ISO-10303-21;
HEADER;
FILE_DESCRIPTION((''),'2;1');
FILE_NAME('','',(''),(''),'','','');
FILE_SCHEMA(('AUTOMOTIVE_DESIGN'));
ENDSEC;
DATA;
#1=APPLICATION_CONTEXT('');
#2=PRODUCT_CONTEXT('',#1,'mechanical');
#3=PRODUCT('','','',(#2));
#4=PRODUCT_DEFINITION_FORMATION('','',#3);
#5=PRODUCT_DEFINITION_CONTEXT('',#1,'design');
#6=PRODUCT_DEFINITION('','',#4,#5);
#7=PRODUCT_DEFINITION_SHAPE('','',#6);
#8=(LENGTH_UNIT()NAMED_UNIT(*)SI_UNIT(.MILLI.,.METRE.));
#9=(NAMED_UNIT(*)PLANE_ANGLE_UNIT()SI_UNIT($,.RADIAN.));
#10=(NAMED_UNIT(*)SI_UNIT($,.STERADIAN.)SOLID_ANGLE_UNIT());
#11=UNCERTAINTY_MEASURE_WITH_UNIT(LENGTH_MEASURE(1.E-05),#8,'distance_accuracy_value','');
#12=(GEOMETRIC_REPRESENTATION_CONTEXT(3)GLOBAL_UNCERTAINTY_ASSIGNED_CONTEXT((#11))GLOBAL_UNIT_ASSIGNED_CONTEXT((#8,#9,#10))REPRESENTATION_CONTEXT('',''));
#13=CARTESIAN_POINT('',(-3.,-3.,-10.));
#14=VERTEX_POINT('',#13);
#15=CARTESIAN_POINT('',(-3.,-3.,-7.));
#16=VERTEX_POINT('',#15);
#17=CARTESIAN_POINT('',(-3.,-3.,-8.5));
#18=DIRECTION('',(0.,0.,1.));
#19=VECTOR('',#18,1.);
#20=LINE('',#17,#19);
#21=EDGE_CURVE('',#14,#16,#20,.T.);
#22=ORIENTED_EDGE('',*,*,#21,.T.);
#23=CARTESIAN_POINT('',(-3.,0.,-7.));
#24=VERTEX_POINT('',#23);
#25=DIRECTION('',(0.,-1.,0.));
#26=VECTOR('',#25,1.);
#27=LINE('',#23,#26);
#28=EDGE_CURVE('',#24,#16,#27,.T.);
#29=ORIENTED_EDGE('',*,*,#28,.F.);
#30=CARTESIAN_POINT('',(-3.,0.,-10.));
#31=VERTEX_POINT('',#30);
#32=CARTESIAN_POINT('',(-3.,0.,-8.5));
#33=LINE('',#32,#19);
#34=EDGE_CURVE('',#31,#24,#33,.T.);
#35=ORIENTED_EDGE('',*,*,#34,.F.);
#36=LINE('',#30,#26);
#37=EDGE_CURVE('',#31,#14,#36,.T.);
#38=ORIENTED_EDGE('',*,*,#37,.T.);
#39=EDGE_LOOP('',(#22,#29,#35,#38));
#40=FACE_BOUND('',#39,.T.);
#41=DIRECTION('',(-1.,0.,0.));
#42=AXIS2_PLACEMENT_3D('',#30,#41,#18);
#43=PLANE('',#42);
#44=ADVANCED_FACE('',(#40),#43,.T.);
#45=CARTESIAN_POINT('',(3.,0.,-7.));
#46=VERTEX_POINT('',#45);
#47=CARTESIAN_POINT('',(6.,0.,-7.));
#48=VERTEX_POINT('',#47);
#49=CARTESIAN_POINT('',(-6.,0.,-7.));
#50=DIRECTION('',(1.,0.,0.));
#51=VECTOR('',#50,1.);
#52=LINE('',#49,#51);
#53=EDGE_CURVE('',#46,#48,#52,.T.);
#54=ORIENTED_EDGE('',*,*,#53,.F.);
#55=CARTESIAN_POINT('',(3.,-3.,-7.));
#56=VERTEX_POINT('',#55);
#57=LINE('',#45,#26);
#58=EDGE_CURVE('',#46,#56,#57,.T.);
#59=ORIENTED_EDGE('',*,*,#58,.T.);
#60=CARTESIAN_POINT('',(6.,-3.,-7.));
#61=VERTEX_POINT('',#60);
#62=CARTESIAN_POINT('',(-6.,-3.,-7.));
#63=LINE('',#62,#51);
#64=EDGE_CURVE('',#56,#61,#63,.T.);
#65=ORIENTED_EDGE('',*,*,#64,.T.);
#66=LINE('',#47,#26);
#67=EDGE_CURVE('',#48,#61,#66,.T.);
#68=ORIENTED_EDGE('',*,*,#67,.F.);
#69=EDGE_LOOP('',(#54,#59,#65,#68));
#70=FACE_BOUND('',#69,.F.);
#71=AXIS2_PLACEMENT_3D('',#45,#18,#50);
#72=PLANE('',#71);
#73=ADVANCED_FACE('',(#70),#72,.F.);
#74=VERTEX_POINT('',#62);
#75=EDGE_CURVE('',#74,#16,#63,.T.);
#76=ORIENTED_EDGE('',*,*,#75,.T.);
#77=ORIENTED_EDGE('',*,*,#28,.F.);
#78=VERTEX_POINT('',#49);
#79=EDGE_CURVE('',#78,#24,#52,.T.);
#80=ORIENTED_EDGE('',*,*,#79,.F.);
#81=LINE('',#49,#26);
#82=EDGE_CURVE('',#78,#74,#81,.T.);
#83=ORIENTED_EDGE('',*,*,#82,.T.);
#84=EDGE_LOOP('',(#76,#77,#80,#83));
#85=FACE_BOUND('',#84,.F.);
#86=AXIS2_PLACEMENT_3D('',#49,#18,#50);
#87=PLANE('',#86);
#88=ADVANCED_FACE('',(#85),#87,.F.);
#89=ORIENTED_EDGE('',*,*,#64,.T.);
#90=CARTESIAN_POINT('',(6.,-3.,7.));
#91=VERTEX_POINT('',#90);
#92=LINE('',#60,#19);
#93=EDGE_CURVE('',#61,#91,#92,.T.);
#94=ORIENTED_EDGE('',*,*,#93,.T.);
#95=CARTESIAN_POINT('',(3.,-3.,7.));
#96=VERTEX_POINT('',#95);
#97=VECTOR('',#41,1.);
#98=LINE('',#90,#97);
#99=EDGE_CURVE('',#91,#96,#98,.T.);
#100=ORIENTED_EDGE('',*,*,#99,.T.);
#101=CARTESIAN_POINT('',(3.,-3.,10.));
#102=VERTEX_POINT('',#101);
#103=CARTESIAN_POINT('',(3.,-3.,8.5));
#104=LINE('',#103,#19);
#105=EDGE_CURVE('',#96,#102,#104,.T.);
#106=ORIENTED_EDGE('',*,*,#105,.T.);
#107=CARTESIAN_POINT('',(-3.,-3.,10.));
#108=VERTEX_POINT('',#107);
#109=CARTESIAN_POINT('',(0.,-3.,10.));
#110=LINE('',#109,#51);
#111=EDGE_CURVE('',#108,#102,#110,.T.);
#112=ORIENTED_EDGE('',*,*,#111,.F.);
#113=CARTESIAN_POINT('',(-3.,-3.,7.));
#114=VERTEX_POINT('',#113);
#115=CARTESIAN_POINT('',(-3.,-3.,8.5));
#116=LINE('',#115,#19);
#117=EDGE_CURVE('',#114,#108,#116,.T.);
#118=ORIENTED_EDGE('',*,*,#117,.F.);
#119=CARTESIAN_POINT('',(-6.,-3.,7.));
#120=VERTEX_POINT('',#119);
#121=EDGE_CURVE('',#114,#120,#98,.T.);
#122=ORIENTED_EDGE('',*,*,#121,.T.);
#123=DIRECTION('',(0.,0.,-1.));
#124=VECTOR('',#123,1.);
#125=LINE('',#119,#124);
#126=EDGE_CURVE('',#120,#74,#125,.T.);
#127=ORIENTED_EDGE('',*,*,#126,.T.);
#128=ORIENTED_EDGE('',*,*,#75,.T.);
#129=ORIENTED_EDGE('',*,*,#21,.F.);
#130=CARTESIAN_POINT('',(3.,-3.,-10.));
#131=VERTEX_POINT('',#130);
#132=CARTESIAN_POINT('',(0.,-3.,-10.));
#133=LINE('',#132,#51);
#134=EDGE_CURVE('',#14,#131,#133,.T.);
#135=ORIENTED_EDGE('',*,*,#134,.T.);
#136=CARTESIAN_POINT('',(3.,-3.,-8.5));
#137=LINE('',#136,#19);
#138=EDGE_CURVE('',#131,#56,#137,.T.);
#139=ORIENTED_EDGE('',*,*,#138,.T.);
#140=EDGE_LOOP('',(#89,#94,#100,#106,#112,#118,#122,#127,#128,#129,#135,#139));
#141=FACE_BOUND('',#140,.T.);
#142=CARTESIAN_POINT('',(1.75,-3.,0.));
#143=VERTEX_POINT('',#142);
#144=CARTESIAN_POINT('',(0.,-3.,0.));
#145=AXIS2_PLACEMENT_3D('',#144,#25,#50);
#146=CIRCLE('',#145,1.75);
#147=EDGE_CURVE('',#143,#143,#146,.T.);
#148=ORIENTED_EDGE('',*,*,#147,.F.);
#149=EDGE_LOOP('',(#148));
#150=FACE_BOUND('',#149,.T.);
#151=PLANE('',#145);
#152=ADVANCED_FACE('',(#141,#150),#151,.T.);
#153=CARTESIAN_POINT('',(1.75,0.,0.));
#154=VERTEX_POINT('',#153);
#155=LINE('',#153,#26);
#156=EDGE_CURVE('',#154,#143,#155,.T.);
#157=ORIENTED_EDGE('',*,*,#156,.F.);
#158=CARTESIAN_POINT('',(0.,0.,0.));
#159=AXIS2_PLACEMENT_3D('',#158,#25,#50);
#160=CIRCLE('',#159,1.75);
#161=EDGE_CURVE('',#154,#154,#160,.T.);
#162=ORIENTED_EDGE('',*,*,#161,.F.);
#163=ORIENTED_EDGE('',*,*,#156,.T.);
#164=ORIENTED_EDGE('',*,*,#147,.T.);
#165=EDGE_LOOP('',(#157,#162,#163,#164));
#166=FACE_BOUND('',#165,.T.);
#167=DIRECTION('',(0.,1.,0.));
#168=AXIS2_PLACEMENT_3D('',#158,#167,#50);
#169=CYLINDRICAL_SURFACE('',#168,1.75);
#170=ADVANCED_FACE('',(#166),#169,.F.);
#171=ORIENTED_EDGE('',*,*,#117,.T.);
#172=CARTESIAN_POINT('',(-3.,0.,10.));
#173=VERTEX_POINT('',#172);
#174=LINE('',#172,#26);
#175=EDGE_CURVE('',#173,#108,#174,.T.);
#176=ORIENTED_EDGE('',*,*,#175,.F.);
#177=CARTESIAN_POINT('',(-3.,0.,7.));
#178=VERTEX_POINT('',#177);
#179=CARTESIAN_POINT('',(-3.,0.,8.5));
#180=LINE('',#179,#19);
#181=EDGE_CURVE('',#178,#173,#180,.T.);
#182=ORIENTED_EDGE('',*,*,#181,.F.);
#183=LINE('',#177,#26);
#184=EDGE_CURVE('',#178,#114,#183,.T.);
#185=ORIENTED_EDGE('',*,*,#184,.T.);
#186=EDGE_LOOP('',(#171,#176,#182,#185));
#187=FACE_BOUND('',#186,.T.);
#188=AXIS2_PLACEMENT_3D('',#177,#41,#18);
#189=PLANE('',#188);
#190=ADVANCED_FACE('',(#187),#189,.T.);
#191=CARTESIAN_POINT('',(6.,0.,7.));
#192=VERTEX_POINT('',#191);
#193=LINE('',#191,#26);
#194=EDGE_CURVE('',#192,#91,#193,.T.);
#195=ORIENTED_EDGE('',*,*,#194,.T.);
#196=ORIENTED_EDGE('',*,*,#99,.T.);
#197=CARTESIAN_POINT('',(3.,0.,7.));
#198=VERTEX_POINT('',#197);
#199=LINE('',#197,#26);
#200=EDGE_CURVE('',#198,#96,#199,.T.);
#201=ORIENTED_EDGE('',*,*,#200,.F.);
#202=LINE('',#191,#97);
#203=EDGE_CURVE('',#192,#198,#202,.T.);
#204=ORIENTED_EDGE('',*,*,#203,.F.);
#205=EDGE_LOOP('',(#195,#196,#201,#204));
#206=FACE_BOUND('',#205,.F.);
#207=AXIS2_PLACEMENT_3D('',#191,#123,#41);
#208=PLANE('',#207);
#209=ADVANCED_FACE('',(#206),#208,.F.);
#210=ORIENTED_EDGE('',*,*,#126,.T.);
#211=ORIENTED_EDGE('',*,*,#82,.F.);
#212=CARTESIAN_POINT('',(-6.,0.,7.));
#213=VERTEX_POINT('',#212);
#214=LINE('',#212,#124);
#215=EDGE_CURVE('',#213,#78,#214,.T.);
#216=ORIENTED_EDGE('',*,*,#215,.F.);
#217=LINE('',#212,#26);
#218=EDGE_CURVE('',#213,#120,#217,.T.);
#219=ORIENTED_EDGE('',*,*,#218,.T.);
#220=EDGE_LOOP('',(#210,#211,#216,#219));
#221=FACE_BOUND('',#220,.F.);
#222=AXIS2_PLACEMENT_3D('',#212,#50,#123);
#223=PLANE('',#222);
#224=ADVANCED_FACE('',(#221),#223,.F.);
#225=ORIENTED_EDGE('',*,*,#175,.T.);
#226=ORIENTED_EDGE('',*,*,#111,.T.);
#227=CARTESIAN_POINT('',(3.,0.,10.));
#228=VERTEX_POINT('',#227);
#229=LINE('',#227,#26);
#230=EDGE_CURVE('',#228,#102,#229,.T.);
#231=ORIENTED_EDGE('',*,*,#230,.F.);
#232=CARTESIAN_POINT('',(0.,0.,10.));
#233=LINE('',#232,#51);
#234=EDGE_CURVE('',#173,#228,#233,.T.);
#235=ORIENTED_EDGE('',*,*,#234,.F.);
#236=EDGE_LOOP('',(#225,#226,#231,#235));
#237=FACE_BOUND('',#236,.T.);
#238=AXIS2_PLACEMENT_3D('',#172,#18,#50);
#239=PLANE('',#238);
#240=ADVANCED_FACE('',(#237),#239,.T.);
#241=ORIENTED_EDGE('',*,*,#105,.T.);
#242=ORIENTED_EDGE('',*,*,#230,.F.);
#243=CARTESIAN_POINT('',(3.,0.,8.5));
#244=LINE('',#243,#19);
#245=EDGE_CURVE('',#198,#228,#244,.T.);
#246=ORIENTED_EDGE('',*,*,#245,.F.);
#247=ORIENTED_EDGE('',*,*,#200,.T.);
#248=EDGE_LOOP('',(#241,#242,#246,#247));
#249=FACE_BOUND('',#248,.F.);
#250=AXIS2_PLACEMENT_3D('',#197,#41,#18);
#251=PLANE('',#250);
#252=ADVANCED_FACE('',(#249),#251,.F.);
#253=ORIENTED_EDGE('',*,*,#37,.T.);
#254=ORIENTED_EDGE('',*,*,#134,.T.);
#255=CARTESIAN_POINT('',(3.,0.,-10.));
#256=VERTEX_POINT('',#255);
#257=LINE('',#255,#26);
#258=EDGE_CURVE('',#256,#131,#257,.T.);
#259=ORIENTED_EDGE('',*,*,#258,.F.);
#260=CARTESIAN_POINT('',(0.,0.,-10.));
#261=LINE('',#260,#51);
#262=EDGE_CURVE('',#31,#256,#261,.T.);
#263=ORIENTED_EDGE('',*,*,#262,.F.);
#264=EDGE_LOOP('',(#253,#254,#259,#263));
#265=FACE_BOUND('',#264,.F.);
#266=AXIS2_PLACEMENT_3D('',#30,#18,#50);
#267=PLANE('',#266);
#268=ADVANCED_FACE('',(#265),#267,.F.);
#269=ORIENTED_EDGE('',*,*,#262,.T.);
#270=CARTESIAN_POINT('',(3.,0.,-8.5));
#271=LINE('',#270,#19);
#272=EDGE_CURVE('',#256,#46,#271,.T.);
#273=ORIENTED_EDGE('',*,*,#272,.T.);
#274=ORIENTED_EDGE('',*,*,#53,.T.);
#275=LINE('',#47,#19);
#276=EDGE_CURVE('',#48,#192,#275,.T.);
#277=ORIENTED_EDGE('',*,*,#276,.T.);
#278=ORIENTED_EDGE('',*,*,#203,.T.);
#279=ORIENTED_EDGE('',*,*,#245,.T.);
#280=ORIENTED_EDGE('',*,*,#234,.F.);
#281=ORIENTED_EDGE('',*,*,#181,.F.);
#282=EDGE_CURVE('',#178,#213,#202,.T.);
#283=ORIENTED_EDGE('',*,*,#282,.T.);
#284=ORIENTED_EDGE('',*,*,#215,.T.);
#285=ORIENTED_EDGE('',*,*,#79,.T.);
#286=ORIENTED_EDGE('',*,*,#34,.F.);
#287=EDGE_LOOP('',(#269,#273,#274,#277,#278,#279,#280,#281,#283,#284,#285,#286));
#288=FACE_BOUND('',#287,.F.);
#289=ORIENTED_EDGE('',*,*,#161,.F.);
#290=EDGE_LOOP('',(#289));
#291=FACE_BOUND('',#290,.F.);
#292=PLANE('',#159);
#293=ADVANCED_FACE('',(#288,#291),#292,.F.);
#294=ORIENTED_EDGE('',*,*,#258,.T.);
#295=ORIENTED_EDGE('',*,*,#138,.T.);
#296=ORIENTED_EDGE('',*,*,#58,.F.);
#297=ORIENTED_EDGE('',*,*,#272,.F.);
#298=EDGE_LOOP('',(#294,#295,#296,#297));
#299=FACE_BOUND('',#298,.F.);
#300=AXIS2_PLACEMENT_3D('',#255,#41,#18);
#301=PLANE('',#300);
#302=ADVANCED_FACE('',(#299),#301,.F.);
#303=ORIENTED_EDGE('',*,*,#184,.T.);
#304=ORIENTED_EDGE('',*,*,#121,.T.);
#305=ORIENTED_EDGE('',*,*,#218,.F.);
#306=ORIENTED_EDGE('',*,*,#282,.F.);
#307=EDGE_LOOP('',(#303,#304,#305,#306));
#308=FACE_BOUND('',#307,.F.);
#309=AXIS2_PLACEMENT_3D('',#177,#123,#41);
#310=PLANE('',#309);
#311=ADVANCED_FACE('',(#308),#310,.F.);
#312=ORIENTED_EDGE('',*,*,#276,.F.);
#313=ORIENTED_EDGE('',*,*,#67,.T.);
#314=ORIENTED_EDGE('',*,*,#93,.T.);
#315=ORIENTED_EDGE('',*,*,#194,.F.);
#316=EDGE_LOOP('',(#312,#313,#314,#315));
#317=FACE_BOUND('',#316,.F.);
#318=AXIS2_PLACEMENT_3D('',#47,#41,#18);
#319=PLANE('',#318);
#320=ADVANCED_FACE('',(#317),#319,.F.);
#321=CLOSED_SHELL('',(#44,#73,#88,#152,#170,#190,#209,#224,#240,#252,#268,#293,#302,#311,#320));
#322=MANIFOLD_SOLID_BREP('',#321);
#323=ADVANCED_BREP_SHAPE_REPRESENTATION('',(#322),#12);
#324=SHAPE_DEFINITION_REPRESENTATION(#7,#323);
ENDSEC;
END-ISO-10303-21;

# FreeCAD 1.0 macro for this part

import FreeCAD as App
import Part
import Sketcher
from FreeCAD import Vector
Q = App.Units.Quantity

doc = App.newDocument("Part")
body = doc.addObject("PartDesign::Body", "Body")

# Sketch on XZ plane
sketch1 = body.newObject("Sketcher::SketchObject", "Sketch")
sketch1.AttachmentSupport = (doc.getObject("XZ_Plane"), [""])
sketch1.MapMode = "FlatFace"
sketch1.addGeometry([
    Part.LineSegment(Vector(6, -7, 0), Vector(6, 7, 0)),  # 0
    Part.LineSegment(Vector(6, 7, 0), Vector(3, 7, 0)),  # 1
    Part.LineSegment(Vector(3, 7, 0), Vector(3, 10, 0)),  # 2
    Part.LineSegment(Vector(3, 10, 0), Vector(-3, 10, 0)),  # 3
    Part.LineSegment(Vector(-3, 10, 0), Vector(-3, 7, 0)),  # 4
    Part.LineSegment(Vector(-3, 7, 0), Vector(-6, 7, 0)),  # 5
    Part.LineSegment(Vector(-6, 7, 0), Vector(-6, -7, 0)),  # 6
    Part.LineSegment(Vector(-6, -7, 0), Vector(-3, -7, 0)),  # 7
    Part.LineSegment(Vector(-3, -7, 0), Vector(-3, -10, 0)),  # 8
    Part.LineSegment(Vector(-3, -10, 0), Vector(3, -10, 0)),  # 9
    Part.LineSegment(Vector(3, -10, 0), Vector(3, -7, 0)),  # 10
    Part.LineSegment(Vector(3, -7, 0), Vector(6, -7, 0)),  # 11
    Part.Circle(Vector(0, 0, 0), Vector(0, 0, 1), 1.8),  # 12
], False)
sketch1.addConstraint([
    Sketcher.Constraint("Coincident", 0, 2, 1, 1),
    Sketcher.Constraint("Coincident", 1, 2, 2, 1),
    Sketcher.Constraint("Coincident", 2, 2, 3, 1),
    Sketcher.Constraint("Coincident", 3, 2, 4, 1),
    Sketcher.Constraint("Coincident", 4, 2, 5, 1),
    Sketcher.Constraint("Coincident", 5, 2, 6, 1),
    Sketcher.Constraint("Coincident", 6, 2, 7, 1),
    Sketcher.Constraint("Coincident", 7, 2, 8, 1),
    Sketcher.Constraint("Coincident", 8, 2, 9, 1),
    Sketcher.Constraint("Coincident", 9, 2, 10, 1),
    Sketcher.Constraint("Coincident", 10, 2, 11, 1),
    Sketcher.Constraint("Coincident", 11, 2, 0, 1),
    Sketcher.Constraint("Vertical", 0),
    Sketcher.Constraint("Horizontal", 1),
    Sketcher.Constraint("Vertical", 2),
    Sketcher.Constraint("Horizontal", 3),
    Sketcher.Constraint("Vertical", 4),
    Sketcher.Constraint("Horizontal", 5),
    Sketcher.Constraint("Vertical", 6),
    Sketcher.Constraint("Horizontal", 7),
    Sketcher.Constraint("Vertical", 8),
    Sketcher.Constraint("Horizontal", 9),
    Sketcher.Constraint("Vertical", 10),
    Sketcher.Constraint("Horizontal", 11),
    Sketcher.Constraint("Coincident", 12, 3, -1, 1),
    Sketcher.Constraint("Symmetric", 0, 2, 6, 2, -1, 1),
    Sketcher.Constraint("Symmetric", 2, 2, 8, 2, -1, 1),
    Sketcher.Constraint("Symmetric", 4, 2, 10, 2, -1, 1),
    Sketcher.Constraint("Symmetric", 1, 2, 4, 2, -2),
    Sketcher.Constraint("Equal", 11, 2),
    Sketcher.Constraint("Diameter", 12, Q("3.5 mm")),
    Sketcher.Constraint("DistanceX", 1, 2, 1, 1, Q("3 mm")),
    Sketcher.Constraint("DistanceX", 3, 2, 3, 1, Q("6 mm")),
    Sketcher.Constraint("DistanceY", 0, 1, 0, 2, Q("14 mm")),
])
pad1 = body.newObject("PartDesign::Pad", "Pad")
pad1.Profile = sketch1
pad1.Length = 3

doc.recompute()
